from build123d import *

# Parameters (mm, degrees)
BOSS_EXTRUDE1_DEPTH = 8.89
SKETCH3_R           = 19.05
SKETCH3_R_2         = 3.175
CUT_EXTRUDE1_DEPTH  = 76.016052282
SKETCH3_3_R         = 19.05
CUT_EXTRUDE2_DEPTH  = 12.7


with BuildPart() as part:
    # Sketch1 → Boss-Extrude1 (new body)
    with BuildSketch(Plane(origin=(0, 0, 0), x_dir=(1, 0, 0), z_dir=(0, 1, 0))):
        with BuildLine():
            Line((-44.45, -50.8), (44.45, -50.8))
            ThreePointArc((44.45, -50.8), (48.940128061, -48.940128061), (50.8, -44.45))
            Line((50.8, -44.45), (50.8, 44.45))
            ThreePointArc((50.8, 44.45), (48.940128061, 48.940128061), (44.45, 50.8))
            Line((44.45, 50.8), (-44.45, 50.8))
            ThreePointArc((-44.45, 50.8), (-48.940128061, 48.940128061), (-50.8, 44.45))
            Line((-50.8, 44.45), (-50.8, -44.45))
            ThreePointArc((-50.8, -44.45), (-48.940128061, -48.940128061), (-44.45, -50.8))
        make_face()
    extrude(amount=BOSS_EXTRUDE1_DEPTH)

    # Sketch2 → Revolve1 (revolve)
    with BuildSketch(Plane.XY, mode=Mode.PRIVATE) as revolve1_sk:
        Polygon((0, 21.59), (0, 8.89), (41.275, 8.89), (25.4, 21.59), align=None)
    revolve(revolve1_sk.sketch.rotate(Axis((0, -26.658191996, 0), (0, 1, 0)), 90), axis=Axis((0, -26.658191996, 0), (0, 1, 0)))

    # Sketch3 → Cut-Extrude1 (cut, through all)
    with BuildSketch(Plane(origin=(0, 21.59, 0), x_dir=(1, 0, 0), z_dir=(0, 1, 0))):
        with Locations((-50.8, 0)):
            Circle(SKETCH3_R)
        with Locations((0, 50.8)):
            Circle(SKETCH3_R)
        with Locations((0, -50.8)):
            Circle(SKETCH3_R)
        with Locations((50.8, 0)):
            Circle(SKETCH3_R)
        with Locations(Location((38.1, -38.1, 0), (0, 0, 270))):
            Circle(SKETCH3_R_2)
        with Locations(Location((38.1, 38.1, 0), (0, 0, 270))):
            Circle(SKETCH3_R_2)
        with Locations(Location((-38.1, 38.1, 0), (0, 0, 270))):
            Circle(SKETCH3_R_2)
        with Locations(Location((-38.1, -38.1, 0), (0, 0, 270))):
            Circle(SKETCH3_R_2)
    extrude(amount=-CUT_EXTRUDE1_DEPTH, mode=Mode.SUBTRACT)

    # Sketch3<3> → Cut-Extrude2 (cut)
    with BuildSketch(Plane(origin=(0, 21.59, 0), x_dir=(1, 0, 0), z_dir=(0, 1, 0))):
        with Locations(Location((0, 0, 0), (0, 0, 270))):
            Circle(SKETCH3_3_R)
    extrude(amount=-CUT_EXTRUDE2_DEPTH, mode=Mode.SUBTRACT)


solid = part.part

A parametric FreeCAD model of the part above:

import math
import FreeCAD as App
import Part
import Sketcher
from FreeCAD import Vector
Q = App.Units.Quantity

doc = App.newDocument("Part")
params = doc.addObject("Spreadsheet::Sheet", "Params")
for row, (alias, value) in enumerate([
    ("sketch1_radius", "0.25 in"),
    ("sketch1_width", "3.5 in"),
    ("pad1_length", "0.35 in"),
    ("sketch2_width", "1 in"),
    ("sketch2_height", "0.5 in"),
    ("sketch2_width2", "1.625 in"),
    ("revolution_angle", "360 deg"),
    ("sketch3_diameter", "1.5 in"),
    ("sketch3_diameter2", "0.25 in"),
    ("sketch4_diameter", "1.5 in"),
    ("pocket2_length", "0.5 in"),
], start=1):
    params.set(f"A{row}", alias)
    params.set(f"B{row}", "=" + value)
    params.setAlias(f"B{row}", alias)

body = doc.addObject("PartDesign::Body", "Body")

# Sketch on XZ plane
sketch1 = doc.addObject("Sketcher::SketchObject", "Sketch")
body.addObject(sketch1)
sketch1.AttachmentSupport = (doc.XZ_Plane, [""])
sketch1.MapMode = "FlatFace"
sketch1.addGeometry([
    Part.LineSegment(Vector(-44.45, 50.8, 0), Vector(44.45, 50.8, 0)),  # 0
    Part.ArcOfCircle(Part.Circle(Vector(44.45, 44.45, 0), Vector(0, 0, 1), 6.35), math.radians(0), math.radians(90)),  # 1
    Part.LineSegment(Vector(50.8, 44.45, 0), Vector(50.8, -44.45, 0)),  # 2
    Part.ArcOfCircle(Part.Circle(Vector(44.45, -44.45, 0), Vector(0, 0, 1), 6.35), math.radians(-90), math.radians(0)),  # 3
    Part.LineSegment(Vector(44.45, -50.8, 0), Vector(-44.45, -50.8, 0)),  # 4
    Part.ArcOfCircle(Part.Circle(Vector(-44.45, -44.45, 0), Vector(0, 0, 1), 6.35), math.radians(180), math.radians(270)),  # 5
    Part.LineSegment(Vector(-50.8, -44.45, 0), Vector(-50.8, 44.45, 0)),  # 6
    Part.ArcOfCircle(Part.Circle(Vector(-44.45, 44.45, 0), Vector(0, 0, 1), 6.35), math.radians(90), math.radians(180)),  # 7
], False)
sketch1.addConstraint([
    Sketcher.Constraint("Tangent", 0, 2, 1, 2),
    Sketcher.Constraint("Tangent", 1, 1, 2, 1),
    Sketcher.Constraint("Tangent", 2, 2, 3, 2),
    Sketcher.Constraint("Tangent", 3, 1, 4, 1),
    Sketcher.Constraint("Tangent", 4, 2, 5, 2),
    Sketcher.Constraint("Tangent", 5, 1, 6, 1),
    Sketcher.Constraint("Tangent", 6, 2, 7, 2),
    Sketcher.Constraint("Tangent", 7, 1, 0, 1),
    Sketcher.Constraint("Horizontal", 0),
    Sketcher.Constraint("Vertical", 2),
    Sketcher.Constraint("Horizontal", 4),
    Sketcher.Constraint("Vertical", 6),
    Sketcher.Constraint("Equal", 1, 3),
    Sketcher.Constraint("Equal", 3, 5),
    Sketcher.Constraint("Equal", 5, 7),
    Sketcher.Constraint("Symmetric", 1, 3, 5, 3, -1, 1),
    Sketcher.Constraint("Equal", 4, 2),
    Sketcher.Constraint("Radius", 1, Q("0.25 in")),
    Sketcher.Constraint("DistanceX", 0, 1, 0, 2, Q("3.5 in")),
])
sketch1.setExpression("Constraints[17]", "Params.sketch1_radius")
sketch1.setExpression("Constraints[18]", "Params.sketch1_width")
pad1 = doc.addObject("PartDesign::Pad", "Pad")
body.addObject(pad1)
pad1.Profile = sketch1
pad1.setExpression("Length", "Params.pad1_length")
pad1.Reversed = True

# Sketch on XY plane
sketch2 = doc.addObject("Sketcher::SketchObject", "Sketch001")
body.addObject(sketch2)
sketch2.AttachmentSupport = (doc.XY_Plane, [""])
sketch2.MapMode = "FlatFace"
sketch2.addGeometry([
    Part.LineSegment(Vector(0, 21.59, 0), Vector(0, 8.89, 0)),
    Part.LineSegment(Vector(0, 8.89, 0), Vector(41.275, 8.89, 0)),
    Part.LineSegment(Vector(41.275, 8.89, 0), Vector(25.4, 21.59, 0)),
    Part.LineSegment(Vector(25.4, 21.59, 0), Vector(0, 21.59, 0)),
], False)
sketch2.addConstraint([
    Sketcher.Constraint("Coincident", 0, 2, 1, 1),
    Sketcher.Constraint("Coincident", 1, 2, 2, 1),
    Sketcher.Constraint("Coincident", 2, 2, 3, 1),
    Sketcher.Constraint("Coincident", 3, 2, 0, 1),
    Sketcher.Constraint("Vertical", 0),
    Sketcher.Constraint("Horizontal", 1),
    Sketcher.Constraint("Horizontal", 3),
    Sketcher.Constraint("PointOnObject", 0, 2, -2),
    Sketcher.Constraint("DistanceX", 3, 2, 3, 1, Q("1 in")),
    Sketcher.Constraint("DistanceY", 0, 2, 0, 1, Q("0.5 in")),
    Sketcher.Constraint("DistanceX", 1, 1, 1, 2, Q("1.625 in")),
    Sketcher.Constraint("DistanceY", -1, 1, 0, 2, Q("0.35 in")),
])
sketch2.setExpression("Constraints[8]", "Params.sketch2_width")
sketch2.setExpression("Constraints[9]", "Params.sketch2_height")
sketch2.setExpression("Constraints[10]", "Params.sketch2_width2")
revolution = doc.addObject("PartDesign::Revolution", "Revolution")
body.addObject(revolution)
revolution.Profile = sketch2
revolution.ReferenceAxis = (sketch2, ["V_Axis"])
revolution.setExpression("Angle", "Params.revolution_angle")

# Sketch on XZ plane
sketch3 = doc.addObject("Sketcher::SketchObject", "Sketch002")
body.addObject(sketch3)
sketch3.AttachmentSupport = (doc.XZ_Plane, [""])
sketch3.MapMode = "FlatFace"
sketch3.AttachmentOffset = App.Placement(Vector(0, 0, -0.85 * 25.4), App.Rotation())
sketch3.addGeometry([
    Part.Circle(Vector(-50.8, 0, 0), Vector(0, 0, 1), 19.05),  # 0
    Part.Circle(Vector(0, -50.8, 0), Vector(0, 0, 1), 19.05),  # 1
    Part.Circle(Vector(0, 50.8, 0), Vector(0, 0, 1), 19.05),  # 2
    Part.Circle(Vector(50.8, 0, 0), Vector(0, 0, 1), 19.05),  # 3
    Part.Circle(Vector(38.1, 38.1, 0), Vector(0, 0, 1), 3.175),  # 4
    Part.Circle(Vector(38.1, -38.1, 0), Vector(0, 0, 1), 3.175),  # 5
    Part.Circle(Vector(-38.1, -38.1, 0), Vector(0, 0, 1), 3.175),  # 6
    Part.Circle(Vector(-38.1, 38.1, 0), Vector(0, 0, 1), 3.175),  # 7
], False)
sketch3.addConstraint([
    Sketcher.Constraint("Equal", 0, 1),
    Sketcher.Constraint("Equal", 1, 2),
    Sketcher.Constraint("Equal", 2, 3),
    Sketcher.Constraint("Equal", 4, 5),
    Sketcher.Constraint("Equal", 5, 6),
    Sketcher.Constraint("Equal", 6, 7),
    Sketcher.Constraint("Symmetric", 1, 3, 2, 3, -1, 1),
    Sketcher.Constraint("Symmetric", 0, 3, 3, 3, -1, 1),
    Sketcher.Constraint("Symmetric", 4, 3, 6, 3, -1, 1),
    Sketcher.Constraint("Symmetric", 5, 3, 7, 3, -1, 1),
    Sketcher.Constraint("Symmetric", 5, 3, 6, 3, -2),
    Sketcher.Constraint("PointOnObject", 0, 3, -1),
    Sketcher.Constraint("PointOnObject", 1, 3, -2),
    Sketcher.Constraint("Diameter", 0, Q("1.5 in")),
    Sketcher.Constraint("Diameter", 4, Q("0.25 in")),
    Sketcher.Constraint("DistanceX", 0, 3, -1, 1, Q("2 in")),
    Sketcher.Constraint("DistanceY", 1, 3, -1, 1, Q("2 in")),
    Sketcher.Constraint("DistanceY", 5, 3, 4, 3, Q("3 in")),
    Sketcher.Constraint("DistanceX", 6, 3, 5, 3, Q("3 in")),
])
sketch3.setExpression("Constraints[13]", "Params.sketch3_diameter")
sketch3.setExpression("Constraints[14]", "Params.sketch3_diameter2")
pocket1 = doc.addObject("PartDesign::Pocket", "Pocket")
body.addObject(pocket1)
pocket1.Profile = sketch3
pocket1.Type = "ThroughAll"
pocket1.Reversed = True

# Sketch on XZ plane
sketch4 = doc.addObject("Sketcher::SketchObject", "Sketch003")
body.addObject(sketch4)
sketch4.AttachmentSupport = (doc.XZ_Plane, [""])
sketch4.MapMode = "FlatFace"
sketch4.AttachmentOffset = App.Placement(Vector(0, 0, -0.85 * 25.4), App.Rotation())
sketch4.addGeometry(Part.Circle(Vector(0, 0, 0), Vector(0, 0, 1), 19.05), False)
sketch4.addConstraint([
    Sketcher.Constraint("Coincident", 0, 3, -1, 1),
    Sketcher.Constraint("Diameter", 0, Q("1.5 in")),
])
sketch4.setExpression("Constraints[1]", "Params.sketch4_diameter")
pocket2 = doc.addObject("PartDesign::Pocket", "Pocket001")
body.addObject(pocket2)
pocket2.Profile = sketch4
pocket2.setExpression("Length", "Params.pocket2_length")
pocket2.Reversed = True

doc.recompute()
